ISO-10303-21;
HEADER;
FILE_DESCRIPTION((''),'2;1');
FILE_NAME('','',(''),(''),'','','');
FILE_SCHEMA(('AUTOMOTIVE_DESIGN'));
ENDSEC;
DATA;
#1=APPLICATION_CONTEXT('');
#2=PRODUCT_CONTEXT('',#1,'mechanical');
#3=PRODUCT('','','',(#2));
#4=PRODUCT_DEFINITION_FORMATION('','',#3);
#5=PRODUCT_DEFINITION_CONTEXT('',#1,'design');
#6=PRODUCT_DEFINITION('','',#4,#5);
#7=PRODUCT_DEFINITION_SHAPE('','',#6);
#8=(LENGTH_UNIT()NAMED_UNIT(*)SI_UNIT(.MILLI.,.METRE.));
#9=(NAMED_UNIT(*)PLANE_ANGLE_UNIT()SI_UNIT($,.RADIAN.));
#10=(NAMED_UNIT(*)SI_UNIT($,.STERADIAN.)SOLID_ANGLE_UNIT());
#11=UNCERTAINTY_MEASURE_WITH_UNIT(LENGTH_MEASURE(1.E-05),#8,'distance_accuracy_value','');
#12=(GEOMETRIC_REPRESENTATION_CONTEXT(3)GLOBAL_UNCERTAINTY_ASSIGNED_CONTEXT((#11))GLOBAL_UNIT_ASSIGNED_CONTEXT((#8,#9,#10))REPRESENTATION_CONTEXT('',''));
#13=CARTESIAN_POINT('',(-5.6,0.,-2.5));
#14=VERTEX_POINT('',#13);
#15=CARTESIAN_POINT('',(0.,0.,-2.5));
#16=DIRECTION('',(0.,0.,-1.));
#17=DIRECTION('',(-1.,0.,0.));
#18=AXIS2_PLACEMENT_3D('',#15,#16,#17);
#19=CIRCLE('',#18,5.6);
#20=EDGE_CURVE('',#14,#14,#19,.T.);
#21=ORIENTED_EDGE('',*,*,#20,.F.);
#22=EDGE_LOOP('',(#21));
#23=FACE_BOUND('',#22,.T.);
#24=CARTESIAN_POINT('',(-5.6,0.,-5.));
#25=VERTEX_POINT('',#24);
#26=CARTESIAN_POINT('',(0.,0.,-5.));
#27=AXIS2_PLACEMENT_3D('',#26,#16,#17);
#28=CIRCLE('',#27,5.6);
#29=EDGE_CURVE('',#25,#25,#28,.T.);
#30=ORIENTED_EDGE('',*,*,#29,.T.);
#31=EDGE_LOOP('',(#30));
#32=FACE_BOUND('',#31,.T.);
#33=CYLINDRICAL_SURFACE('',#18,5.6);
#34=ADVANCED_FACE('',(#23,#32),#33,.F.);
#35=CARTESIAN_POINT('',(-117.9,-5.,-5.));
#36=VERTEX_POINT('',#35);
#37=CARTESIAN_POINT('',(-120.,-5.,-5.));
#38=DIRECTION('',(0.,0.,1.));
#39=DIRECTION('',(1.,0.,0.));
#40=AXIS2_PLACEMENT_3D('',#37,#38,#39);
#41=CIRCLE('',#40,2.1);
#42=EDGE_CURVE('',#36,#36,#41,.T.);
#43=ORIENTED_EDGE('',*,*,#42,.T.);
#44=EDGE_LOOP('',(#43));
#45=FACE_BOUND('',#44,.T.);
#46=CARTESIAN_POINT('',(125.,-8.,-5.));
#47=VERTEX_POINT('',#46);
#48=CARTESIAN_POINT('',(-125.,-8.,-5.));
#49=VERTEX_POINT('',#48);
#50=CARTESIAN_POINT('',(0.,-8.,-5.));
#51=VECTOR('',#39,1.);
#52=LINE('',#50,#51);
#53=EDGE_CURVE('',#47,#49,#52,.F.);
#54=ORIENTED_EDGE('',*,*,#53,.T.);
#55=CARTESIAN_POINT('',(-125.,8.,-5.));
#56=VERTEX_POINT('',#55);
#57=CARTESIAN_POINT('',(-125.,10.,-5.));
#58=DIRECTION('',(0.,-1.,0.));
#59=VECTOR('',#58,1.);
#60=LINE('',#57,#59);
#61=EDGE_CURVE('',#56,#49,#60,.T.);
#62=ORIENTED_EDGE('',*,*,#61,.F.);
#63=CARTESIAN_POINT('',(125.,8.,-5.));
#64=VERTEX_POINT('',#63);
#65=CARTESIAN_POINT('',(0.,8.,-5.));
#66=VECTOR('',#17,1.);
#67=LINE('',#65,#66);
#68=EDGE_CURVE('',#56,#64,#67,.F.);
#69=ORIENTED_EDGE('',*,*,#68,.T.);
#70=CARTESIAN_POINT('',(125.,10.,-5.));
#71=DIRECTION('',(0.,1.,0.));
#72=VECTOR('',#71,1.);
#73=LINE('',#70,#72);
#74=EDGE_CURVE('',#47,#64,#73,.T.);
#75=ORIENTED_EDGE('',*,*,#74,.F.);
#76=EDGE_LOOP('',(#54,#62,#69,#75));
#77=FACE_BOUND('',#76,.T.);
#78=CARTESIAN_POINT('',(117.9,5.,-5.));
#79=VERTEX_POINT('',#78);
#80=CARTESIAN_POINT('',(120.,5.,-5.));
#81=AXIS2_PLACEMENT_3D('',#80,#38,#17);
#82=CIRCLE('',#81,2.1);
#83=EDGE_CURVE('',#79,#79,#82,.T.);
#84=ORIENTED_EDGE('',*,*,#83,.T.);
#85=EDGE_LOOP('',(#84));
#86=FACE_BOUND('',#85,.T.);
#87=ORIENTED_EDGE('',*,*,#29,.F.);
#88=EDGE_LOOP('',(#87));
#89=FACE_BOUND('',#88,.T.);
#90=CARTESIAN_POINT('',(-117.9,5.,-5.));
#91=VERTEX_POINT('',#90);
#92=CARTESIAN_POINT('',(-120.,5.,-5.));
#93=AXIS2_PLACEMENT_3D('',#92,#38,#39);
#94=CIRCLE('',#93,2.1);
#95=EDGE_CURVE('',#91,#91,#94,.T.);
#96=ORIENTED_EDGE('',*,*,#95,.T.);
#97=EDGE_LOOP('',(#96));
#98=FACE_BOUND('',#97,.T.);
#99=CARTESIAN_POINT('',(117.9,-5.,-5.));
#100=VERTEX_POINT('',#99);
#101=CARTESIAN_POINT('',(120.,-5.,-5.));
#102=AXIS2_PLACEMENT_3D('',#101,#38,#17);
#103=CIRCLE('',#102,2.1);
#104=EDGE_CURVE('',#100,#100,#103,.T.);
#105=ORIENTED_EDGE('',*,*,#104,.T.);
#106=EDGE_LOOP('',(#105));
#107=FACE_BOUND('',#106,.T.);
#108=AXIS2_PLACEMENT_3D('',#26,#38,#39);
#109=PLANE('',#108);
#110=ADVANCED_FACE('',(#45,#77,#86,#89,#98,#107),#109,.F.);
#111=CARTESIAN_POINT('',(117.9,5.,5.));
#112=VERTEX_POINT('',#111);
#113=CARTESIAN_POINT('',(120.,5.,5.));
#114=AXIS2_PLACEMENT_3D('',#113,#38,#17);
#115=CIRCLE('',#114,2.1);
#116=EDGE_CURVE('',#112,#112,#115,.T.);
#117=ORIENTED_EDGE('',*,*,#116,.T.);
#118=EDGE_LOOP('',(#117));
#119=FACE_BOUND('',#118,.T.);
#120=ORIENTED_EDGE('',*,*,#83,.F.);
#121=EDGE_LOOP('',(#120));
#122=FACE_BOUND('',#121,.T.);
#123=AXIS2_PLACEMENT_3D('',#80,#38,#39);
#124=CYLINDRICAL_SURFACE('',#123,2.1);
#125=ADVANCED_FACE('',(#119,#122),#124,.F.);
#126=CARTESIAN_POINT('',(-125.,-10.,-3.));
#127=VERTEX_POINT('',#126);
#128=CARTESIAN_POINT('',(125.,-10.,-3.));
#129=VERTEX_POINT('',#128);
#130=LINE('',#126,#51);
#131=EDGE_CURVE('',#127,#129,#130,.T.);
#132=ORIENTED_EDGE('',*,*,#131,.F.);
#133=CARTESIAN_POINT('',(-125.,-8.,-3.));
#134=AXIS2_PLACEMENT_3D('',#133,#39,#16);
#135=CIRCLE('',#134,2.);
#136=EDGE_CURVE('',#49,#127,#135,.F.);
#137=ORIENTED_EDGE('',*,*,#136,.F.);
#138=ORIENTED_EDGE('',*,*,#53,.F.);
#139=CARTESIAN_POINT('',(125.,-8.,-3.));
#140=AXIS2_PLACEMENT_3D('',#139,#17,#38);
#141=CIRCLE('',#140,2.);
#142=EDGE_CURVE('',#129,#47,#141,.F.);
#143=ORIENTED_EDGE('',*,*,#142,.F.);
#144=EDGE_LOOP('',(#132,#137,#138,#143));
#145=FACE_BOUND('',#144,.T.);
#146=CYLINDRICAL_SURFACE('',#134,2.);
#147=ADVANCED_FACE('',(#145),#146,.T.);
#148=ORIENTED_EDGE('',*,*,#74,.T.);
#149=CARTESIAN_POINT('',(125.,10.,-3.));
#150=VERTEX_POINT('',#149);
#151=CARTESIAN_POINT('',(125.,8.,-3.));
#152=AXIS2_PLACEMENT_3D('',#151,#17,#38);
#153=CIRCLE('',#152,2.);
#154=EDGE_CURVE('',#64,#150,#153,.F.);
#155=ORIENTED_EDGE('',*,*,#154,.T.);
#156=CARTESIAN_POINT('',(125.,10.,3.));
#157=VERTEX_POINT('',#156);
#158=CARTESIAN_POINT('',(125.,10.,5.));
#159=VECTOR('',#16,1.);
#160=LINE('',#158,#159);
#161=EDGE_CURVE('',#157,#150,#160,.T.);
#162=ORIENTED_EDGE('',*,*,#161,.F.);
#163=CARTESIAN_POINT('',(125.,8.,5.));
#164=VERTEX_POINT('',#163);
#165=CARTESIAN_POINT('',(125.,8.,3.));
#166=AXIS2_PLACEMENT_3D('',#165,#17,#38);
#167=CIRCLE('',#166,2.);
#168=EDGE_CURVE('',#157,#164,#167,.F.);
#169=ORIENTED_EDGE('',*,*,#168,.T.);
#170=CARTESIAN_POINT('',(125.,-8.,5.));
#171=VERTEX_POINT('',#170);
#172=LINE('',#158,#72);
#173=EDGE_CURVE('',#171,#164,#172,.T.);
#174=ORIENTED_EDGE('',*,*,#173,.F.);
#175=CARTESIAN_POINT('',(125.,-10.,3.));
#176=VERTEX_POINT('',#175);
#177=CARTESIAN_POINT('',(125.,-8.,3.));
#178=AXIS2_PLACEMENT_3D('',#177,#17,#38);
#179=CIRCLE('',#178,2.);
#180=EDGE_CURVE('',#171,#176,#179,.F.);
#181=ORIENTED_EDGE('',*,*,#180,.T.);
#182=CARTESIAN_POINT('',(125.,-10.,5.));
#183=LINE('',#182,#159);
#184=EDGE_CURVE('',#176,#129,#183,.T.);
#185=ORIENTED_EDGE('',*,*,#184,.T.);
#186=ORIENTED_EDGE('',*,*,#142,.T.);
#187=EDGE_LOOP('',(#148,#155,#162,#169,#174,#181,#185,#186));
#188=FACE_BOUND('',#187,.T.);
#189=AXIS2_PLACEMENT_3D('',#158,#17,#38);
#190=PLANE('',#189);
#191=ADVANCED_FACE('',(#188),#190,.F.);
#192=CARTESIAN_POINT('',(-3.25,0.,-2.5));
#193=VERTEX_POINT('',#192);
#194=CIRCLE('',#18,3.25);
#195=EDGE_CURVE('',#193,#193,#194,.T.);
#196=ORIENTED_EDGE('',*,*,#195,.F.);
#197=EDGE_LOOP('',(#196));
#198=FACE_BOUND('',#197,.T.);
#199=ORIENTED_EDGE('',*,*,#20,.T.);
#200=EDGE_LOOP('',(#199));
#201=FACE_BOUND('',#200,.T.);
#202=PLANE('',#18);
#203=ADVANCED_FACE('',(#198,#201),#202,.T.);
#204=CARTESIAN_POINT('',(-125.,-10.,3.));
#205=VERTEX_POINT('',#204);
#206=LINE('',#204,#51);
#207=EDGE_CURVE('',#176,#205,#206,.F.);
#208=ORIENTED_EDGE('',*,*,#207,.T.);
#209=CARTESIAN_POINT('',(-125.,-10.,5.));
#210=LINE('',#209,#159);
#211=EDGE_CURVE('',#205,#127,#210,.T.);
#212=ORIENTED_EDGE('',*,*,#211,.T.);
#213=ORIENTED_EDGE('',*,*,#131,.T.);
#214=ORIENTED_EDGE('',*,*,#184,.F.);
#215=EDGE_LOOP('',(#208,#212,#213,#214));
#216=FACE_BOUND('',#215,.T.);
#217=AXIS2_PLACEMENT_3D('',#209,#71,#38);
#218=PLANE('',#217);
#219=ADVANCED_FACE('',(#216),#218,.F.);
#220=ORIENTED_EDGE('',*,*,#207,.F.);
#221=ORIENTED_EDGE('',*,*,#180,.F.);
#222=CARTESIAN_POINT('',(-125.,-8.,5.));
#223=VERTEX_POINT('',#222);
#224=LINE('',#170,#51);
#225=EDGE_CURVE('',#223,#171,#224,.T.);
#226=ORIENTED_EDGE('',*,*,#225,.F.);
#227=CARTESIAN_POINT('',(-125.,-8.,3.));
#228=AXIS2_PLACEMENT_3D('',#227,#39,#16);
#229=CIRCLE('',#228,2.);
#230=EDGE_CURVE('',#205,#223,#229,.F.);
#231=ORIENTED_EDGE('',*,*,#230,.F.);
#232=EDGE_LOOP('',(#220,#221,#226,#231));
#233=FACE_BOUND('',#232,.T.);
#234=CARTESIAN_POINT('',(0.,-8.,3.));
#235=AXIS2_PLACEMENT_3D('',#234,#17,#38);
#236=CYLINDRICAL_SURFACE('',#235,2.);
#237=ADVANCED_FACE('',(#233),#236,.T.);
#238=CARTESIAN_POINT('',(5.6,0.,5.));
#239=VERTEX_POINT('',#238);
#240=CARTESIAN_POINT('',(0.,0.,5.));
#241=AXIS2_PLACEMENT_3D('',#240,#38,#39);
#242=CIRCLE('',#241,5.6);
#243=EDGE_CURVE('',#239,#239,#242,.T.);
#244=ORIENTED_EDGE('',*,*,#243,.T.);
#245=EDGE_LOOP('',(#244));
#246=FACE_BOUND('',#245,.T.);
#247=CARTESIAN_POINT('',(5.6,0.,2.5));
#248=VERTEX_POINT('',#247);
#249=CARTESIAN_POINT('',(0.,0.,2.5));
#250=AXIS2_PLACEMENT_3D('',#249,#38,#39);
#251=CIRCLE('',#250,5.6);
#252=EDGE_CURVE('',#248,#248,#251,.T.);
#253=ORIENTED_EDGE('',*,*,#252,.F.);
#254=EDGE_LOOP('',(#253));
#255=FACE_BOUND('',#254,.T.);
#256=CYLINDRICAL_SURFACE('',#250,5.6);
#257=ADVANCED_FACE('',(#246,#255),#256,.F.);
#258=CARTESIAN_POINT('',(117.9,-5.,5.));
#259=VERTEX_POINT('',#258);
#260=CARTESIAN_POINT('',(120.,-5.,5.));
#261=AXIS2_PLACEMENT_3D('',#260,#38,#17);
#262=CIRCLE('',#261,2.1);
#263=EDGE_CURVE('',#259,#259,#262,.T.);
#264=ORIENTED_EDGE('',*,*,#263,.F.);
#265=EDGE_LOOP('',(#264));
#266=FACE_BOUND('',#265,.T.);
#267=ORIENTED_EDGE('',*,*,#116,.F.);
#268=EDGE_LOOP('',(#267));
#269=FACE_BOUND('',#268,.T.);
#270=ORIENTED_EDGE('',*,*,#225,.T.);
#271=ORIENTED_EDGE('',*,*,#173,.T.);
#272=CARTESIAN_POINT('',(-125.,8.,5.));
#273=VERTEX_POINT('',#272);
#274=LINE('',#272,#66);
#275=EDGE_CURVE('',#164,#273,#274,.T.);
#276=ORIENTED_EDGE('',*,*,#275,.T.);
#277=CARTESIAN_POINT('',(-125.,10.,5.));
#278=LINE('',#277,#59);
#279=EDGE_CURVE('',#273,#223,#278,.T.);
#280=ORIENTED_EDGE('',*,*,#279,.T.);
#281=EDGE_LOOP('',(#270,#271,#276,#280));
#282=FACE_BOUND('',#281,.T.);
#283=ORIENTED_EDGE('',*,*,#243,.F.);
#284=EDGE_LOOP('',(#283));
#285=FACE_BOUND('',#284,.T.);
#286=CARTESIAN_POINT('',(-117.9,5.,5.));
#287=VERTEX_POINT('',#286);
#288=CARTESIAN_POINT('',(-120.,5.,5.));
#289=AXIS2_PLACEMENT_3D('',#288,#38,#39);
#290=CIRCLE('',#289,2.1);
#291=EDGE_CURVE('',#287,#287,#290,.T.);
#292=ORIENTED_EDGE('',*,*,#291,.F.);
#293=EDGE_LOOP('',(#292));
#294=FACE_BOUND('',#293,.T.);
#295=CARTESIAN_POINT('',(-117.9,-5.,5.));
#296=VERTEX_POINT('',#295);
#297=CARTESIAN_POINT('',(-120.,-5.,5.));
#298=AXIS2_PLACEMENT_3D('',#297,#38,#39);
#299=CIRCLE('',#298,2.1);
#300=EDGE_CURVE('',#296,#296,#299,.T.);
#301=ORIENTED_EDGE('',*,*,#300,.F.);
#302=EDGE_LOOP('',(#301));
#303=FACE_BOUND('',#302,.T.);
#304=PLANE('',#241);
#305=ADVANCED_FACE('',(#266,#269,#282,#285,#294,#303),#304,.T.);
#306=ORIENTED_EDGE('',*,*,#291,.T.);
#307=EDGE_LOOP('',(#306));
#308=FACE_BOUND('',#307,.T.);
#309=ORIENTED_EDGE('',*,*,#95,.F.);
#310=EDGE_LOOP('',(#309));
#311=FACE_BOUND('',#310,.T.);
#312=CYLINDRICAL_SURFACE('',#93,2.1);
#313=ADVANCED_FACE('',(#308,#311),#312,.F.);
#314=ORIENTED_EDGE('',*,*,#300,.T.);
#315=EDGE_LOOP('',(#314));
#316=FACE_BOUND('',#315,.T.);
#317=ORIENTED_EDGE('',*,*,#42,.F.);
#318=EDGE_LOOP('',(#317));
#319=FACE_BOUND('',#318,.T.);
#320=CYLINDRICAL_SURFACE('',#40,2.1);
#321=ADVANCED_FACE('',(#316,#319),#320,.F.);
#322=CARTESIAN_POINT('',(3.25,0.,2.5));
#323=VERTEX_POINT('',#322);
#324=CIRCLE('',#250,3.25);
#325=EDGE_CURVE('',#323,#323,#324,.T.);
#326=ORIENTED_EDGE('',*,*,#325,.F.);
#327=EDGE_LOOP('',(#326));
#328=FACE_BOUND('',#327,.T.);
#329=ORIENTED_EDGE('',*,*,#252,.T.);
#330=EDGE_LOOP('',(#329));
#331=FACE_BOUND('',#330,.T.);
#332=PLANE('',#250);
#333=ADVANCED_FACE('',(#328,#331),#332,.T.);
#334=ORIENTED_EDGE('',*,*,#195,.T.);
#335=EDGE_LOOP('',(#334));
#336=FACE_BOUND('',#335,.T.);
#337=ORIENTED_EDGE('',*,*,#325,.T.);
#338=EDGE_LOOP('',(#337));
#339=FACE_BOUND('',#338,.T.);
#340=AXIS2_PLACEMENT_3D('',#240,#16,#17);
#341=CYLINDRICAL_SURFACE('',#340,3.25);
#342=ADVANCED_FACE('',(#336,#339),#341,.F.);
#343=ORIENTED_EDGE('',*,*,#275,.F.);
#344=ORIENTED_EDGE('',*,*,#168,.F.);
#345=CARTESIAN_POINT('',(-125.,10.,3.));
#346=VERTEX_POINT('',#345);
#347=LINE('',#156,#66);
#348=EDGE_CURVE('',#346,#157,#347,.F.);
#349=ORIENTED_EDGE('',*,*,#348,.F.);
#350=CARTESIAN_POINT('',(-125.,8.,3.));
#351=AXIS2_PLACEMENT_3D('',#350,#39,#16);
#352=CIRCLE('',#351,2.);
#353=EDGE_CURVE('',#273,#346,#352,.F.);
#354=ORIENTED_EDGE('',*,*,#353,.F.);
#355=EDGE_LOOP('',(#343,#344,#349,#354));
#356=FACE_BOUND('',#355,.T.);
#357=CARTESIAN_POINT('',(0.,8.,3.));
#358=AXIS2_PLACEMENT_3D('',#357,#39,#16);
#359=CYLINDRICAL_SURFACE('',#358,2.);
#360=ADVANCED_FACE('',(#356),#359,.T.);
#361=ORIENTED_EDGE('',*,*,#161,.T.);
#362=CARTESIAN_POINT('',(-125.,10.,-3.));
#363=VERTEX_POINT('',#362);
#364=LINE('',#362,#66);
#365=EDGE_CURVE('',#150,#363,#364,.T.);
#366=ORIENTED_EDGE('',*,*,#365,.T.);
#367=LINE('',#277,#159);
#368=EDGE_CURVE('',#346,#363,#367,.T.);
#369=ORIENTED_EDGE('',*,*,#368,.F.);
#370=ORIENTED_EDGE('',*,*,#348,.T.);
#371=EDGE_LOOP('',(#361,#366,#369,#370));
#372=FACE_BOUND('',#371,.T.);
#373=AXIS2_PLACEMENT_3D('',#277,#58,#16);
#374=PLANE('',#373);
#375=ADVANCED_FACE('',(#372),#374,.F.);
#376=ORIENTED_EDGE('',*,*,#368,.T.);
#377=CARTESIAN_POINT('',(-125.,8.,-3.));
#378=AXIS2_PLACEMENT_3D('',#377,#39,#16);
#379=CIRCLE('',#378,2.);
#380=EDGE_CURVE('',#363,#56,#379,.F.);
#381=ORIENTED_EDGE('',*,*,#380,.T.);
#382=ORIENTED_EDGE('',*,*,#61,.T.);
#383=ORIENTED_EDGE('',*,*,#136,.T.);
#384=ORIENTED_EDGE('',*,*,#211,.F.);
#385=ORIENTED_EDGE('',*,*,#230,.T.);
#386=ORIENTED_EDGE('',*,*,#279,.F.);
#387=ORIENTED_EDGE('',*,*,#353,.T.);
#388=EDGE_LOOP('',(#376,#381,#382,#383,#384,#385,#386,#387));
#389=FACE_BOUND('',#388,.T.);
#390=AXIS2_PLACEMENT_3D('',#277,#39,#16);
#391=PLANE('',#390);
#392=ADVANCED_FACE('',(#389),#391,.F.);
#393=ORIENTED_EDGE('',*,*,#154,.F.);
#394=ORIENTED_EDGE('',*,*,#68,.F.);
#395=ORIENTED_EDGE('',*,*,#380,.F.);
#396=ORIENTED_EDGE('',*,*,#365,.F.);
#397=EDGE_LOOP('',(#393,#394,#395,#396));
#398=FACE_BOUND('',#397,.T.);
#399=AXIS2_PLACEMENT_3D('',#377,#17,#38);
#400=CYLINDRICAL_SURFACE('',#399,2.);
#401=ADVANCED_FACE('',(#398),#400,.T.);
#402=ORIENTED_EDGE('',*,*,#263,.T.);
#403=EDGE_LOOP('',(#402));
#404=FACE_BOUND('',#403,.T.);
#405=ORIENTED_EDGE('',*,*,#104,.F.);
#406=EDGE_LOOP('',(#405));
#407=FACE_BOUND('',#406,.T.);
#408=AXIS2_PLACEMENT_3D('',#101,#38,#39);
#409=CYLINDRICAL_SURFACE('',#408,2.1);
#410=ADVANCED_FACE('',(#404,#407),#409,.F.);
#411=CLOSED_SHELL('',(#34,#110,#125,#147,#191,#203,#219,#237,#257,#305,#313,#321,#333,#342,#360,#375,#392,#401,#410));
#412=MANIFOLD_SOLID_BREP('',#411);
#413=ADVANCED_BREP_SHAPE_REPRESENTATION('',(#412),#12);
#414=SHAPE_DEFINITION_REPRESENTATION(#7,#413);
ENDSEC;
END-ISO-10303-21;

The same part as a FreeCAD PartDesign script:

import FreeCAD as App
import Part
import Sketcher

V = App.Vector
Q = App.Units.Quantity


def edges_at(feature, points):
    """Names of the edges that pass closest to the given points."""
    edges = feature.Shape.Edges
    near = lambda p: min(range(len(edges)), key=lambda i: edges[i].distToShape(Part.Vertex(*p))[0])
    return sorted({f"Edge{near(p) + 1}" for p in points})


def add_polygon(sketch, points):
    """Adds a closed chain of lines whose ends are joined by coincident constraints."""
    first, n = sketch.GeometryCount, len(points)
    for a, b in zip(points, points[1:] + points[:1]):
        sketch.addGeometry(Part.LineSegment(App.Vector(*a, 0), App.Vector(*b, 0)), False)
    for i in range(n):
        sketch.addConstraint(Sketcher.Constraint("Coincident", first + i, 2, first + (i + 1) % n, 1))

doc = App.newDocument("Part")
body = doc.addObject("PartDesign::Body", "Body")

sketch1 = body.newObject("Sketcher::SketchObject", "Sketch")
sketch1.AttachmentSupport = (doc.getObject("XY_Plane"), [""])
sketch1.MapMode = "FlatFace"
add_polygon(sketch1, [(-125, 10), (-125, -10), (125, -10), (125, 10)])
sketch1.addGeometry(Part.Circle(V(0, 0, 0), V(0, 0, 1), 3.2), False)
sketch1.addConstraint([
    Sketcher.Constraint("Vertical", 0),
    Sketcher.Constraint("Horizontal", 1),
    Sketcher.Constraint("Vertical", 2),
    Sketcher.Constraint("Horizontal", 3),
    Sketcher.Constraint("Coincident", 4, 3, -1, 1),
    Sketcher.Constraint("Symmetric", 0, 2, 2, 2, -1, 1),
    Sketcher.Constraint("Diameter", 4, Q("6.5 mm")),
    Sketcher.Constraint("DistanceX", 1, 1, 1, 2, Q("250 mm")),
    Sketcher.Constraint("DistanceY", 0, 2, 0, 1, Q("20 mm")),
])
pad1 = body.newObject("PartDesign::Pad", "Pad")
pad1.Profile = sketch1
pad1.Length = 10
pad1.Midplane = True

sketch2 = body.newObject("Sketcher::SketchObject", "Sketch001")
sketch2.AttachmentSupport = (doc.getObject("XY_Plane"), [""])
sketch2.MapMode = "FlatFace"
sketch2.AttachmentOffset = App.Placement(V(0, 0, -5), App.Rotation())
sketch2.addGeometry(Part.Circle(V(0, 0, 0), V(0, 0, 1), 6), False)
sketch2.addConstraint([
    Sketcher.Constraint("Coincident", 0, 3, -1, 1),
    Sketcher.Constraint("Diameter", 0, Q("11.2 mm")),
])
pocket1 = body.newObject("PartDesign::Pocket", "Pocket")
pocket1.Profile = sketch2
pocket1.Length = 2.5
pocket1.Reversed = True

sketch3 = body.newObject("Sketcher::SketchObject", "Sketch002")
sketch3.AttachmentSupport = (doc.getObject("XY_Plane"), [""])
sketch3.MapMode = "FlatFace"
sketch3.AttachmentOffset = App.Placement(V(0, 0, 2.5), App.Rotation())
sketch3.addGeometry(Part.Circle(V(0, 0, 0), V(0, 0, 1), 6), False)
sketch3.addConstraint([
    Sketcher.Constraint("Coincident", 0, 3, -1, 1),
    Sketcher.Constraint("Diameter", 0, Q("11.2 mm")),
])
pocket2 = body.newObject("PartDesign::Pocket", "Pocket001")
pocket2.Profile = sketch3
pocket2.Length = 2.5
pocket2.Reversed = True

sketch4 = body.newObject("Sketcher::SketchObject", "Sketch003")
sketch4.AttachmentSupport = (doc.getObject("XY_Plane"), [""])
sketch4.MapMode = "FlatFace"
sketch4.AttachmentOffset = App.Placement(V(0, 0, 5), App.Rotation())
sketch4.addGeometry([
    Part.Circle(V(-120, 5, 0), V(0, 0, 1), 2.1),
    Part.Circle(V(-120, -5, 0), V(0, 0, 1), 2.1),
    Part.Circle(V(120, -5, 0), V(0, 0, 1), 2.1),
    Part.Circle(V(120, 5, 0), V(0, 0, 1), 2.1),
], False)
sketch4.addConstraint([
    Sketcher.Constraint("Equal", 0, 1),
    Sketcher.Constraint("Equal", 1, 2),
    Sketcher.Constraint("Equal", 2, 3),
    Sketcher.Constraint("Symmetric", 0, 3, 2, 3, -1, 1),
    Sketcher.Constraint("Symmetric", 1, 3, 3, 3, -1, 1),
    Sketcher.Constraint("Symmetric", 1, 3, 2, 3, -2),
    Sketcher.Constraint("Diameter", 0, Q("4.2 mm")),
    Sketcher.Constraint("DistanceX", 0, 3, -1, 1, Q("120 mm")),
    Sketcher.Constraint("DistanceY", -1, 1, 0, 3, Q("5 mm")),
])
pocket3 = body.newObject("PartDesign::Pocket", "Pocket002")
pocket3.Profile = sketch4
pocket3.Type = "ThroughAll"
doc.recompute()

fillet = body.newObject("PartDesign::Fillet", "Fillet")
fillet.Base = (pocket3, edges_at(pocket3, [
    (0, -10, 5),
    (0, -10, -5),
    (0, 10, -5),
    (0, 10, 5),
]))
fillet.Radius = 2

doc.recompute()
